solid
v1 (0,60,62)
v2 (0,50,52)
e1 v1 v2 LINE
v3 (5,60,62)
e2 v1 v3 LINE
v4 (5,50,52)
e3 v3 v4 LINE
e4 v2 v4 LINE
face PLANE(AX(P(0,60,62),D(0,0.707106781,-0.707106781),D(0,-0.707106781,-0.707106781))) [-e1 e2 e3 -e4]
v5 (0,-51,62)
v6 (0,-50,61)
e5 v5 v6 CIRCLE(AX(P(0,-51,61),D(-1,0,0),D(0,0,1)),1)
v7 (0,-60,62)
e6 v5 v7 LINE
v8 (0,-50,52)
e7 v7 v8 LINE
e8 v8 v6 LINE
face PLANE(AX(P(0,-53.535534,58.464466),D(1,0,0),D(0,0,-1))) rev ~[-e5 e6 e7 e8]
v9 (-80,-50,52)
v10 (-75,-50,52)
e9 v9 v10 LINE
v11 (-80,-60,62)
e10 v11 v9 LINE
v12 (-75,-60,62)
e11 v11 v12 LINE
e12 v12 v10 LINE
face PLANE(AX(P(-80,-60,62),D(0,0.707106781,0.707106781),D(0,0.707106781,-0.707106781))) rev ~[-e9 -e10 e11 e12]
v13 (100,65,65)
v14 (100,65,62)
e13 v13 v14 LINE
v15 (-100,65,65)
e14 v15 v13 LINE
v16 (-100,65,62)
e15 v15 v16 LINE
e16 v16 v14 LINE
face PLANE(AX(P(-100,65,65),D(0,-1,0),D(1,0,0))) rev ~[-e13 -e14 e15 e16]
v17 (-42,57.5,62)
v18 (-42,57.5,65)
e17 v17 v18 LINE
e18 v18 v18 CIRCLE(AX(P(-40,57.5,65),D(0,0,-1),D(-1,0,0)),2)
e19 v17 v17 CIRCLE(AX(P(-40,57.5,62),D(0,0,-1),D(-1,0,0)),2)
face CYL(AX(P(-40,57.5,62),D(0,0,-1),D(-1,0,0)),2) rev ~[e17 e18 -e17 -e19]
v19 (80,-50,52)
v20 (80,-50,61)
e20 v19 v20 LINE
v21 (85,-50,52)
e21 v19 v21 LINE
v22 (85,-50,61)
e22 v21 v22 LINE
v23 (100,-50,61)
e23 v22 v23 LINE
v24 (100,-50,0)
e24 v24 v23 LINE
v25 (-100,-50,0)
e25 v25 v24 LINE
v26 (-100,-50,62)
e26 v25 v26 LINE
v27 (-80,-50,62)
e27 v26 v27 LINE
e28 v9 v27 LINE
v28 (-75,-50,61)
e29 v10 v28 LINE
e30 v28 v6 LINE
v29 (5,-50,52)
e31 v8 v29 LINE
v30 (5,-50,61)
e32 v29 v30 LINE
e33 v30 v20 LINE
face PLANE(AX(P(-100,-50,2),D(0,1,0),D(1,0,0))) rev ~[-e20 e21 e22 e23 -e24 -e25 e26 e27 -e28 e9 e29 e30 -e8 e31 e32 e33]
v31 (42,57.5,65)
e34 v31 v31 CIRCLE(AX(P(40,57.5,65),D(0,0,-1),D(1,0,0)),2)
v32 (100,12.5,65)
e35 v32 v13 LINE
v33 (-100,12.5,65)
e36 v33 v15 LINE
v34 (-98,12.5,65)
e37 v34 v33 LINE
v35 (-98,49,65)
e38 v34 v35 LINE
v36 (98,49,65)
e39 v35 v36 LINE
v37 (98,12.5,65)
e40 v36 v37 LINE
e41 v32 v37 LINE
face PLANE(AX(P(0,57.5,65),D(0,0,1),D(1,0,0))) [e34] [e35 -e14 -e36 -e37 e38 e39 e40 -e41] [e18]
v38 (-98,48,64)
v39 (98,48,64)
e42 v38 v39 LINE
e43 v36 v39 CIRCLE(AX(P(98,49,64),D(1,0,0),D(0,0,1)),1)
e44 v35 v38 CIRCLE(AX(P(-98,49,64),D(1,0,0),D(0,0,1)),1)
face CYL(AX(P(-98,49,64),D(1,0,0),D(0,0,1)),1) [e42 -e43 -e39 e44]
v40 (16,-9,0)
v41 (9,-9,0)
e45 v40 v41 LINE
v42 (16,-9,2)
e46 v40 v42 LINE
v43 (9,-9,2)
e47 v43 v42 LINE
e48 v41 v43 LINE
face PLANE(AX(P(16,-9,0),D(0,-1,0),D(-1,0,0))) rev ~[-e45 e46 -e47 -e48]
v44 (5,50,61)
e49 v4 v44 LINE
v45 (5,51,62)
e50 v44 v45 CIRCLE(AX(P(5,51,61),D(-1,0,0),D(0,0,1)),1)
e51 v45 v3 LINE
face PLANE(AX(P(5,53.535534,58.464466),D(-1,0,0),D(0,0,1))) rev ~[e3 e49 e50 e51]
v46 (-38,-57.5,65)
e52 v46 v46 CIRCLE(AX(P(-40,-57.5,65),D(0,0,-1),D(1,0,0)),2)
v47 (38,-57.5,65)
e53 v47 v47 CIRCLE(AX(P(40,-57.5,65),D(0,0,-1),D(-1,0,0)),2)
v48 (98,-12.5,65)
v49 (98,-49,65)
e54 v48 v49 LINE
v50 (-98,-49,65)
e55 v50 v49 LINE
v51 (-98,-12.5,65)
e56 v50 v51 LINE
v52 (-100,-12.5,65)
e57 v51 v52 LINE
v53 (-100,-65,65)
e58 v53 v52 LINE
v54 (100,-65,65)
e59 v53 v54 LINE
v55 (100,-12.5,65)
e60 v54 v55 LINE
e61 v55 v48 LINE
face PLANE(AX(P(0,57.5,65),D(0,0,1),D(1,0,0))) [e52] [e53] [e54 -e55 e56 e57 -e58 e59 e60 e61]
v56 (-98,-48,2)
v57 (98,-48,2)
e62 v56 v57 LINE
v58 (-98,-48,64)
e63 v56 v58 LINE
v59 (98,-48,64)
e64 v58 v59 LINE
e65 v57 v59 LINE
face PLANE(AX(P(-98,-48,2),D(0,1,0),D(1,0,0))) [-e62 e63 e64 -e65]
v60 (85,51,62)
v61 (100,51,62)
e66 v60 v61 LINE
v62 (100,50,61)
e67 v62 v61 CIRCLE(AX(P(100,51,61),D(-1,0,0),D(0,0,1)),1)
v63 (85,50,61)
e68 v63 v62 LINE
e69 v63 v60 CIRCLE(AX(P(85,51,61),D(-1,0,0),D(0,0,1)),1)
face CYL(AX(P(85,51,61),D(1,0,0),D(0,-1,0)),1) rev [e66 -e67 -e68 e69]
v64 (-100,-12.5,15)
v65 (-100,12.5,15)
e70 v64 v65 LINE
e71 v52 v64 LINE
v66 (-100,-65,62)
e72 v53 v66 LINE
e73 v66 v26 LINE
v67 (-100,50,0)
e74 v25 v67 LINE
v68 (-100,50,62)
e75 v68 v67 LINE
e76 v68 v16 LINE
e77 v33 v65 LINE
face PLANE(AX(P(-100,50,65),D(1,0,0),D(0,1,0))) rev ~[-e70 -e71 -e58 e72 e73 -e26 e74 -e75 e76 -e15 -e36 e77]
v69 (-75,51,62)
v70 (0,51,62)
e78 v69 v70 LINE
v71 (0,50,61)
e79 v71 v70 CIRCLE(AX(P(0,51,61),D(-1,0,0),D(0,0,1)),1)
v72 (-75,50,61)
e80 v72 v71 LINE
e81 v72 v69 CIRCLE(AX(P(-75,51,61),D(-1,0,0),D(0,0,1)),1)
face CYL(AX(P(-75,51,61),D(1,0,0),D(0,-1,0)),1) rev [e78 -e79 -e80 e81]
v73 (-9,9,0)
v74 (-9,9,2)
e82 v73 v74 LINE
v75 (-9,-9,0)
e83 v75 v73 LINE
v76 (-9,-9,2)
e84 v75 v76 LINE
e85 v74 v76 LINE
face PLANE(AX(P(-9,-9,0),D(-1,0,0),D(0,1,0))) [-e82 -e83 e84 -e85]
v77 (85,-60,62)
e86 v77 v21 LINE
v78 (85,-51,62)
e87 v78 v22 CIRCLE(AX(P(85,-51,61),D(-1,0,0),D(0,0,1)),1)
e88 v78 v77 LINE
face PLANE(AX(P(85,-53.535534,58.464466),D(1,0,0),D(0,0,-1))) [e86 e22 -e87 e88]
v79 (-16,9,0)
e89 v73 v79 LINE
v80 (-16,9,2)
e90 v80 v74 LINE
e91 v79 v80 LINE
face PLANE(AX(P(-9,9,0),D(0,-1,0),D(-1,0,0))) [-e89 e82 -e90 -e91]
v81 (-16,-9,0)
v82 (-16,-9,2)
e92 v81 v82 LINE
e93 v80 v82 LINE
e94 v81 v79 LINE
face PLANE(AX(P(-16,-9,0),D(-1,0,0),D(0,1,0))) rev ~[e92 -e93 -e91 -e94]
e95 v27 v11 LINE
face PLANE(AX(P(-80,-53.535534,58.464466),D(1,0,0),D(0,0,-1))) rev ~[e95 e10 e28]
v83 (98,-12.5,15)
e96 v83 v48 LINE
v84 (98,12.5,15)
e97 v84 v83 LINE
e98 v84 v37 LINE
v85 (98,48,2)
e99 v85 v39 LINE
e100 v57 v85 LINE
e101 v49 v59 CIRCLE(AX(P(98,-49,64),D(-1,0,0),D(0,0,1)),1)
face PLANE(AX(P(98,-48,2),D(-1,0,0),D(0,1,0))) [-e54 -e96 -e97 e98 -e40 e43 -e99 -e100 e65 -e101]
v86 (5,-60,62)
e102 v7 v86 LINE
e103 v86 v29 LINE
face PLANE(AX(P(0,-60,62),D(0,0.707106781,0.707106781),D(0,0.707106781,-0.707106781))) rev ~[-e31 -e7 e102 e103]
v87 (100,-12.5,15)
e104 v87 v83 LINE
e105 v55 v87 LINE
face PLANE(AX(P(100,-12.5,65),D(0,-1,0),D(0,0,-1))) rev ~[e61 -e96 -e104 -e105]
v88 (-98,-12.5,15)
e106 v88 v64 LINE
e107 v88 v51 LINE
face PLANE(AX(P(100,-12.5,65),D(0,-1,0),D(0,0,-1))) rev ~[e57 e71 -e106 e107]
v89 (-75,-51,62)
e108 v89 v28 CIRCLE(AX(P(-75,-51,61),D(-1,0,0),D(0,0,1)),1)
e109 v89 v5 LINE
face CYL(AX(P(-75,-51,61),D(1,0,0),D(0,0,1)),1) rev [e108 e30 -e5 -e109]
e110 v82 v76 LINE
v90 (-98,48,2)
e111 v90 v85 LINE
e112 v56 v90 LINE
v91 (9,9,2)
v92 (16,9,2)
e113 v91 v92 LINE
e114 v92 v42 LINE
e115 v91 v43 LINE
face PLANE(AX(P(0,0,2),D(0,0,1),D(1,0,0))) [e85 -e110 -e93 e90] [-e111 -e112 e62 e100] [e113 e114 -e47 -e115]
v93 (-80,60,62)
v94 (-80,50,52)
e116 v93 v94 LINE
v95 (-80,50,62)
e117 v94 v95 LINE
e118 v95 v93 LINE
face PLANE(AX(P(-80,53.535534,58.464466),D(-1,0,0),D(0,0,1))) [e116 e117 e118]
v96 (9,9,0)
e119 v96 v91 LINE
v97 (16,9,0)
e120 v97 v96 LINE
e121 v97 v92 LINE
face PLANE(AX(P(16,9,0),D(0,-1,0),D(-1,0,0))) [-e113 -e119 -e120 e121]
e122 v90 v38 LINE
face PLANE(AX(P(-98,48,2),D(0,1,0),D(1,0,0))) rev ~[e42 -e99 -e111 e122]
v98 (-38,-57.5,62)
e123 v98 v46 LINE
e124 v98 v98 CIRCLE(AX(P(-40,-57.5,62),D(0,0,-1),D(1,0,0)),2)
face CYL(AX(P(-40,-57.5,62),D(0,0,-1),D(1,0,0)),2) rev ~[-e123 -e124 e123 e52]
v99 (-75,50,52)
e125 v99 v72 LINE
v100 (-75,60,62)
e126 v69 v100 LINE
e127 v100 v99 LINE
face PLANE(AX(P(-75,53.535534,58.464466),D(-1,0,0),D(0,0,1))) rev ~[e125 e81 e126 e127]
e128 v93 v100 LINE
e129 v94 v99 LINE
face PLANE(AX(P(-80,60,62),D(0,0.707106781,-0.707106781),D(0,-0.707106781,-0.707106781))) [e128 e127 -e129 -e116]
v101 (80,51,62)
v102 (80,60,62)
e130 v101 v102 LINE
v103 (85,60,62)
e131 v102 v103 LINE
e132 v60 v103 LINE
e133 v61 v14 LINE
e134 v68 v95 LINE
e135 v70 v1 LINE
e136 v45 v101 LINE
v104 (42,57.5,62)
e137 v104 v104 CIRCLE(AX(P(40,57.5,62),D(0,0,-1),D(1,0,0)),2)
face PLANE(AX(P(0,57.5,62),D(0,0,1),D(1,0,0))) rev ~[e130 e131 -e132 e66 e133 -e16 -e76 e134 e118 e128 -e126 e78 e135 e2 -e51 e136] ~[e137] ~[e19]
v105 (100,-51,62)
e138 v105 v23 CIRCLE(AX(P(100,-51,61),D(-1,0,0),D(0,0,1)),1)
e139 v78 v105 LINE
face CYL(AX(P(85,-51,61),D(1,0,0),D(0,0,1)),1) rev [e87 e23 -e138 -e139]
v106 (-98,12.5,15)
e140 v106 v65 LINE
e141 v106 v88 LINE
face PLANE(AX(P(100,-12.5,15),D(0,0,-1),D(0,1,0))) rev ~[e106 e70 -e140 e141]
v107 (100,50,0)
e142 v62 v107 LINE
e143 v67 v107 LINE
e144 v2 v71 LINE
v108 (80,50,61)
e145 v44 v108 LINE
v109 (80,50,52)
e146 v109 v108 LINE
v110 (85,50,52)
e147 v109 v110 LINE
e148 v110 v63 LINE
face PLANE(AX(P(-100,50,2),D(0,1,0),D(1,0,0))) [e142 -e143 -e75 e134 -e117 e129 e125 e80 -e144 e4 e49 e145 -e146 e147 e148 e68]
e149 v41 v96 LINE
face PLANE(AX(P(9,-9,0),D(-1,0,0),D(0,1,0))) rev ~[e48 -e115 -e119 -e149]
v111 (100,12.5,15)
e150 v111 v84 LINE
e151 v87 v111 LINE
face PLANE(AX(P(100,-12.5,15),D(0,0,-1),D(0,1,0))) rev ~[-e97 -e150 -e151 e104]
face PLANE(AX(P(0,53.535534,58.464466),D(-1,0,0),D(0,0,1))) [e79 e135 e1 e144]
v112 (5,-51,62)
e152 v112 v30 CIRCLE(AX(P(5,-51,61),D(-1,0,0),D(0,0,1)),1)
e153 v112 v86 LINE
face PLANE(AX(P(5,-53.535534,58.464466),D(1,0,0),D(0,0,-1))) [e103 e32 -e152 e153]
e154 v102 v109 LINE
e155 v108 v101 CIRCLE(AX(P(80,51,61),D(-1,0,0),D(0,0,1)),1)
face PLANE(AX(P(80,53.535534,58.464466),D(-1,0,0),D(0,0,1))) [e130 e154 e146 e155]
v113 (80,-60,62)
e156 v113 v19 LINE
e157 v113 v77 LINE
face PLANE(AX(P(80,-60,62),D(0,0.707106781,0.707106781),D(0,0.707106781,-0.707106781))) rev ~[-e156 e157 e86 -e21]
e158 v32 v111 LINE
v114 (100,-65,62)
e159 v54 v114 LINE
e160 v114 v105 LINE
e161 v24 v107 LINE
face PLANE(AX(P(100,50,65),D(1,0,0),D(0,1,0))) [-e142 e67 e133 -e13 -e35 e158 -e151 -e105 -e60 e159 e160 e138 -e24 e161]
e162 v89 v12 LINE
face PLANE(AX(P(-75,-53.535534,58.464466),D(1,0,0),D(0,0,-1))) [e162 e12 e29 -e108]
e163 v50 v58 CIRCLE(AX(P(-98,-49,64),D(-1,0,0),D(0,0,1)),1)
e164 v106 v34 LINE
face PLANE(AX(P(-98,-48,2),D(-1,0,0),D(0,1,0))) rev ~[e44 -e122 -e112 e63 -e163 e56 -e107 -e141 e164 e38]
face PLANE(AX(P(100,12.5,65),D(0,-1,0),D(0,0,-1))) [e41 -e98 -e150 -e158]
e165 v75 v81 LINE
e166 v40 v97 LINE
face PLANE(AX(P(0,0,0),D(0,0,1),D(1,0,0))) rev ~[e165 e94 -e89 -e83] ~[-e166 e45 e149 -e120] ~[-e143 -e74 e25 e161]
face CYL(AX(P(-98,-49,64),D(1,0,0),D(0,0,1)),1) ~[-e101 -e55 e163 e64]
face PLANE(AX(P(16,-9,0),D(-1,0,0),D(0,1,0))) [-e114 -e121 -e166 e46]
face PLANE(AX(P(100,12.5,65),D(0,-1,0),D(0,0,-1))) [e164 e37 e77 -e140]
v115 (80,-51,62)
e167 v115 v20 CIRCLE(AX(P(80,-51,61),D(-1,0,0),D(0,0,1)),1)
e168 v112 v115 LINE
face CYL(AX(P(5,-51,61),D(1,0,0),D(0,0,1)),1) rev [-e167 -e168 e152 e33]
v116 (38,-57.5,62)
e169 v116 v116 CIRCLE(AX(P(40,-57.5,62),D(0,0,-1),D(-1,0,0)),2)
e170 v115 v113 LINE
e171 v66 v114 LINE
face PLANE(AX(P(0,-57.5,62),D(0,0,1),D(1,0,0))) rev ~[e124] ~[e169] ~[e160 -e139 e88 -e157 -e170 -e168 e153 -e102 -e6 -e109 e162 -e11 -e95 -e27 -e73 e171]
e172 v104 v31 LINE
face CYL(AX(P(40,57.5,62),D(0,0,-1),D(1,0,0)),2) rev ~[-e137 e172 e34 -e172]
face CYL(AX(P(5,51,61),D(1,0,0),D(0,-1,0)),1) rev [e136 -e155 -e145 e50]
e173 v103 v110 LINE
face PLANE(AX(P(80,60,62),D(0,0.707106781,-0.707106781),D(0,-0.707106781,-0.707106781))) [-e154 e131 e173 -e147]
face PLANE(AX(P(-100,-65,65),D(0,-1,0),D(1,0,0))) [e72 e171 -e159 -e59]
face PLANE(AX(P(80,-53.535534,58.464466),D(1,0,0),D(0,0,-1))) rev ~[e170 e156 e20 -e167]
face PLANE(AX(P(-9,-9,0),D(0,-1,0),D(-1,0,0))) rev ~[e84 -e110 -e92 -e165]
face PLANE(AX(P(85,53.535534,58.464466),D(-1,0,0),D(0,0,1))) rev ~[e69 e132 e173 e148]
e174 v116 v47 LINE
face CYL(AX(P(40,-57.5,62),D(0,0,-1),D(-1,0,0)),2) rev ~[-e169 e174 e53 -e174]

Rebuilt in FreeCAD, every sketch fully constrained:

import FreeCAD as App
import Part
import Sketcher
Q = App.Units.Quantity


def edges_at(feature, points):
    """Names of the edges that pass closest to the given points."""
    edges = feature.Shape.Edges
    near = lambda p: min(range(len(edges)), key=lambda i: edges[i].distToShape(Part.Vertex(*p))[0])
    return sorted({f"Edge{near(p) + 1}" for p in points})


def add_polygon(sketch, points):
    """Adds a closed chain of lines whose ends are joined by coincident constraints."""
    first, n = sketch.GeometryCount, len(points)
    for a, b in zip(points, points[1:] + points[:1]):
        sketch.addGeometry(Part.LineSegment(App.Vector(*a, 0), App.Vector(*b, 0)), False)
    for i in range(n):
        sketch.addConstraint(Sketcher.Constraint("Coincident", first + i, 2, first + (i + 1) % n, 1))

doc = App.newDocument("Part")
params = doc.addObject("Spreadsheet::Sheet", "Params")
for row, (alias, value) in enumerate([
    ("sketch1_width", "200 mm"),
    ("sketch1_height", "100 mm"),
    ("pad1_length", "2 mm"),
    ("sketch2_width", "200 mm"),
    ("sketch2_width2", "196 mm"),
    ("sketch2_height", "100 mm"),
    ("sketch2_height2", "96 mm"),
    ("pad2_length", "63 mm"),
    ("sketch3_width", "7 mm"),
    ("sketch3_height", "18 mm"),
    ("pocket1_length", "63 mm"),
    ("sketch4_width", "200 mm"),
    ("sketch4_height", "15 mm"),
    ("pad3_length", "3 mm"),
    ("sketch5_width", "10 mm"),
    ("pad4_length", "5 mm"),
    ("linearpattern_pitch", "80 mm"),
    ("linearpattern2_pitch", "80 mm"),
    ("sketch6_diameter", "4 mm"),
    ("pocket2_length", "5 mm"),
    ("fillet_radius", "1 mm"),
    ("sketch7_width", "25 mm"),
    ("sketch7_height", "50 mm"),
    ("pocket3_length", "281 mm"),
], start=1):
    params.set(f"A{row}", alias)
    params.set(f"B{row}", "=" + value)
    params.setAlias(f"B{row}", alias)

body = doc.addObject("PartDesign::Body", "Body")

sketch1 = doc.addObject("Sketcher::SketchObject", "Sketch")
body.addObject(sketch1)
sketch1.AttachmentSupport = (doc.XY_Plane, [""])
sketch1.MapMode = "FlatFace"
add_polygon(sketch1, [(-100, 50), (-100, -50), (100, -50), (100, 50)])
sketch1.addConstraint([
    Sketcher.Constraint("Vertical", 0),
    Sketcher.Constraint("Horizontal", 1),
    Sketcher.Constraint("Vertical", 2),
    Sketcher.Constraint("Horizontal", 3),
    Sketcher.Constraint("Symmetric", 0, 2, 2, 2, -1, 1),
    Sketcher.Constraint("DistanceX", 1, 1, 1, 2, Q("200 mm")),
    Sketcher.Constraint("DistanceY", 0, 2, 0, 1, Q("100 mm")),
])
sketch1.setExpression("Constraints[9]", "Params.sketch1_width")
sketch1.setExpression("Constraints[10]", "Params.sketch1_height")
pad1 = doc.addObject("PartDesign::Pad", "Pad")
body.addObject(pad1)
pad1.Profile = sketch1
pad1.setExpression("Length", "Params.pad1_length")

sketch2 = doc.addObject("Sketcher::SketchObject", "Sketch001")
body.addObject(sketch2)
sketch2.AttachmentSupport = (doc.XY_Plane, [""])
sketch2.MapMode = "FlatFace"
sketch2.AttachmentOffset = App.Placement(App.Vector(0, 0, 2), App.Rotation())
add_polygon(sketch2, [(-100, 50), (-100, -50), (100, -50), (100, 50)])
add_polygon(sketch2, [(98, -48), (-98, -48), (-98, 48), (98, 48)])
sketch2.addConstraint([
    Sketcher.Constraint("Vertical", 0),
    Sketcher.Constraint("Horizontal", 1),
    Sketcher.Constraint("Vertical", 2),
    Sketcher.Constraint("Horizontal", 3),
    Sketcher.Constraint("Horizontal", 4),
    Sketcher.Constraint("Vertical", 5),
    Sketcher.Constraint("Horizontal", 6),
    Sketcher.Constraint("Vertical", 7),
    Sketcher.Constraint("Symmetric", 0, 2, 2, 2, -1, 1),
    Sketcher.Constraint("Symmetric", 4, 2, 6, 2, -1, 1),
    Sketcher.Constraint("DistanceX", 1, 1, 1, 2, Q("200 mm")),
    Sketcher.Constraint("DistanceX", 4, 2, 4, 1, Q("196 mm")),
    Sketcher.Constraint("DistanceY", 0, 2, 0, 1, Q("100 mm")),
    Sketcher.Constraint("DistanceY", 5, 1, 5, 2, Q("96 mm")),
])
sketch2.setExpression("Constraints[18]", "Params.sketch2_width")
sketch2.setExpression("Constraints[19]", "Params.sketch2_width2")
sketch2.setExpression("Constraints[20]", "Params.sketch2_height")
sketch2.setExpression("Constraints[21]", "Params.sketch2_height2")
pad2 = doc.addObject("PartDesign::Pad", "Pad001")
body.addObject(pad2)
pad2.Profile = sketch2
pad2.setExpression("Length", "Params.pad2_length")

sketch3 = doc.addObject("Sketcher::SketchObject", "Sketch002")
body.addObject(sketch3)
sketch3.AttachmentSupport = (doc.XY_Plane, [""])
sketch3.MapMode = "FlatFace"
add_polygon(sketch3, [(-9, 9), (-9, -9), (-16, -9), (-16, 9)])
add_polygon(sketch3, [(16, 9), (16, -9), (9, -9), (9, 9)])
sketch3.addConstraint([
    Sketcher.Constraint("Vertical", 0),
    Sketcher.Constraint("Horizontal", 1),
    Sketcher.Constraint("Vertical", 2),
    Sketcher.Constraint("Horizontal", 3),
    Sketcher.Constraint("Vertical", 4),
    Sketcher.Constraint("Horizontal", 5),
    Sketcher.Constraint("Vertical", 6),
    Sketcher.Constraint("Horizontal", 7),
    Sketcher.Constraint("Symmetric", 2, 2, 4, 2, -1, 1),
    Sketcher.Constraint("Symmetric", 0, 2, 6, 2, -1, 1),
    Sketcher.Constraint("Horizontal", 1, 2, 4, 2),
    Sketcher.Constraint("DistanceX", 1, 2, 1, 1, Q("7 mm")),
    Sketcher.Constraint("DistanceY", 0, 2, 0, 1, Q("18 mm")),
    Sketcher.Constraint("DistanceX", 0, 2, -1, 1, Q("9 mm")),
])
sketch3.setExpression("Constraints[19]", "Params.sketch3_width")
sketch3.setExpression("Constraints[20]", "Params.sketch3_height")
pocket1 = doc.addObject("PartDesign::Pocket", "Pocket")
body.addObject(pocket1)
pocket1.Profile = sketch3
pocket1.setExpression("Length", "Params.pocket1_length")
pocket1.Reversed = True

sketch4 = doc.addObject("Sketcher::SketchObject", "Sketch003")
body.addObject(sketch4)
sketch4.AttachmentSupport = (doc.XY_Plane, [""])
sketch4.MapMode = "FlatFace"
sketch4.AttachmentOffset = App.Placement(App.Vector(0, 0, 65), App.Rotation())
add_polygon(sketch4, [(-100, 65), (-100, 50), (100, 50), (100, 65)])
add_polygon(sketch4, [(-100, -50), (-100, -65), (100, -65), (100, -50)])
sketch4.addConstraint([
    Sketcher.Constraint("Vertical", 0),
    Sketcher.Constraint("Horizontal", 1),
    Sketcher.Constraint("Vertical", 2),
    Sketcher.Constraint("Horizontal", 3),
    Sketcher.Constraint("Vertical", 4),
    Sketcher.Constraint("Horizontal", 5),
    Sketcher.Constraint("Vertical", 6),
    Sketcher.Constraint("Horizontal", 7),
    Sketcher.Constraint("Symmetric", 2, 2, 4, 2, -1, 1),
    Sketcher.Constraint("Symmetric", 0, 2, 6, 2, -1, 1),
    Sketcher.Constraint("Vertical", 3, 2, 4, 2),
    Sketcher.Constraint("DistanceX", 1, 1, 1, 2, Q("200 mm")),
    Sketcher.Constraint("DistanceY", 0, 2, 0, 1, Q("15 mm")),
    Sketcher.Constraint("DistanceY", -1, 1, 0, 2, Q("50 mm")),
])
sketch4.setExpression("Constraints[19]", "Params.sketch4_width")
sketch4.setExpression("Constraints[20]", "Params.sketch4_height")
pad3 = doc.addObject("PartDesign::Pad", "Pad002")
body.addObject(pad3)
pad3.Profile = sketch4
pad3.setExpression("Length", "Params.pad3_length")
pad3.Reversed = True

sketch5 = doc.addObject("Sketcher::SketchObject", "Sketch004")
body.addObject(sketch5)
sketch5.AttachmentSupport = (doc.YZ_Plane, [""])
sketch5.MapMode = "FlatFace"
add_polygon(sketch5, [(50, 52), (60, 62), (50, 62)])
add_polygon(sketch5, [(-50, 52), (-50, 62), (-60, 62)])
sketch5.addConstraint([
    Sketcher.Constraint("Horizontal", 1),
    Sketcher.Constraint("Vertical", 2),
    Sketcher.Constraint("Vertical", 3),
    Sketcher.Constraint("Horizontal", 4),
    Sketcher.Constraint("Symmetric", 1, 2, 3, 2, -2),
    Sketcher.Constraint("Perpendicular", 0, 5),
    Sketcher.Constraint("Horizontal", 2, 2, 5, 2),
    Sketcher.Constraint("Equal", 1, 4),
    Sketcher.Constraint("DistanceX", 1, 2, 1, 1, Q("10 mm")),
    Sketcher.Constraint("DistanceX", -1, 1, 0, 2, Q("60 mm")),
    Sketcher.Constraint("DistanceY", -1, 1, 0, 2, Q("62 mm")),
])
sketch5.setExpression("Constraints[14]", "Params.sketch5_width")
pad4 = doc.addObject("PartDesign::Pad", "Pad003")
body.addObject(pad4)
pad4.Profile = sketch5
pad4.setExpression("Length", "Params.pad4_length")
doc.recompute()

linearpattern = doc.addObject("PartDesign::LinearPattern", "LinearPattern")
body.addObject(linearpattern)
linearpattern.Originals = [pad4]
linearpattern.Direction = (doc.X_Axis, [""])
linearpattern.Mode = "offset"
linearpattern.setExpression("Offset", "Params.linearpattern_pitch")
linearpattern.Occurrences = 2
linearpattern.Reversed = True
body.Tip = linearpattern
doc.recompute()

linearpattern2 = doc.addObject("PartDesign::LinearPattern", "LinearPattern001")
body.addObject(linearpattern2)
linearpattern2.Originals = [pad4]
linearpattern2.Direction = (doc.X_Axis, [""])
linearpattern2.Mode = "offset"
linearpattern2.setExpression("Offset", "Params.linearpattern2_pitch")
linearpattern2.Occurrences = 2
body.Tip = linearpattern2

sketch6 = doc.addObject("Sketcher::SketchObject", "Sketch005")
body.addObject(sketch6)
sketch6.AttachmentSupport = (doc.XY_Plane, [""])
sketch6.MapMode = "FlatFace"
sketch6.AttachmentOffset = App.Placement(App.Vector(0, 0, 62), App.Rotation())
sketch6.addGeometry([
    Part.Circle(App.Vector(40, -57.5, 0), App.Vector(0, 0, 1), 2),
    Part.Circle(App.Vector(-40, -57.5, 0), App.Vector(0, 0, 1), 2),
    Part.Circle(App.Vector(-40, 57.5, 0), App.Vector(0, 0, 1), 2),
    Part.Circle(App.Vector(40, 57.5, 0), App.Vector(0, 0, 1), 2),
], False)
sketch6.addConstraint([
    Sketcher.Constraint("Equal", 0, 1),
    Sketcher.Constraint("Equal", 1, 2),
    Sketcher.Constraint("Equal", 2, 3),
    Sketcher.Constraint("Symmetric", 0, 3, 2, 3, -1, 1),
    Sketcher.Constraint("Symmetric", 1, 3, 3, 3, -1, 1),
    Sketcher.Constraint("Symmetric", 0, 3, 1, 3, -2),
    Sketcher.Constraint("Diameter", 0, Q("4 mm")),
    Sketcher.Constraint("DistanceX", -1, 1, 0, 3, Q("40 mm")),
    Sketcher.Constraint("DistanceY", 1, 3, 2, 3, Q("115 mm")),
])
sketch6.setExpression("Constraints[6]", "Params.sketch6_diameter")
pocket2 = doc.addObject("PartDesign::Pocket", "Pocket001")
body.addObject(pocket2)
pocket2.Profile = sketch6
pocket2.setExpression("Length", "Params.pocket2_length")
pocket2.Reversed = True
doc.recompute()

fillet = doc.addObject("PartDesign::Fillet", "Fillet")
body.addObject(fillet)
fillet.Base = (pocket2, edges_at(pocket2, [
    (42.5, 50, 62),
    (-37.5, -50, 62),
    (-37.5, 50, 62),
    (92.5, 50, 62),
    (42.5, -50, 62),
    (0, 48, 65),
    (0, -48, 65),
    (92.5, -50, 62),
]))
fillet.setExpression("Radius", "Params.fillet_radius")

sketch7 = doc.addObject("Sketcher::SketchObject", "Sketch006")
body.addObject(sketch7)
sketch7.AttachmentSupport = (doc.YZ_Plane, [""])
sketch7.MapMode = "FlatFace"
sketch7.AttachmentOffset = App.Placement(App.Vector(0, 0, 100), App.Rotation())
add_polygon(sketch7, [(12.5, 65), (-12.5, 65), (-12.5, 15), (12.5, 15)])
sketch7.addConstraint([
    Sketcher.Constraint("Horizontal", 0),
    Sketcher.Constraint("Vertical", 1),
    Sketcher.Constraint("Horizontal", 2),
    Sketcher.Constraint("Vertical", 3),
    Sketcher.Constraint("DistanceX", 0, 2, 0, 1, Q("25 mm")),
    Sketcher.Constraint("DistanceY", 1, 2, 1, 1, Q("50 mm")),
    Sketcher.Constraint("DistanceY", -1, 1, 0, 2, Q("65 mm")),
    Sketcher.Constraint("DistanceX", 0, 2, -1, 1, Q("12.5 mm")),
])
sketch7.setExpression("Constraints[8]", "Params.sketch7_width")
sketch7.setExpression("Constraints[9]", "Params.sketch7_height")
pocket3 = doc.addObject("PartDesign::Pocket", "Pocket002")
body.addObject(pocket3)
pocket3.Profile = sketch7
pocket3.setExpression("Length", "Params.pocket3_length")

doc.recompute()
